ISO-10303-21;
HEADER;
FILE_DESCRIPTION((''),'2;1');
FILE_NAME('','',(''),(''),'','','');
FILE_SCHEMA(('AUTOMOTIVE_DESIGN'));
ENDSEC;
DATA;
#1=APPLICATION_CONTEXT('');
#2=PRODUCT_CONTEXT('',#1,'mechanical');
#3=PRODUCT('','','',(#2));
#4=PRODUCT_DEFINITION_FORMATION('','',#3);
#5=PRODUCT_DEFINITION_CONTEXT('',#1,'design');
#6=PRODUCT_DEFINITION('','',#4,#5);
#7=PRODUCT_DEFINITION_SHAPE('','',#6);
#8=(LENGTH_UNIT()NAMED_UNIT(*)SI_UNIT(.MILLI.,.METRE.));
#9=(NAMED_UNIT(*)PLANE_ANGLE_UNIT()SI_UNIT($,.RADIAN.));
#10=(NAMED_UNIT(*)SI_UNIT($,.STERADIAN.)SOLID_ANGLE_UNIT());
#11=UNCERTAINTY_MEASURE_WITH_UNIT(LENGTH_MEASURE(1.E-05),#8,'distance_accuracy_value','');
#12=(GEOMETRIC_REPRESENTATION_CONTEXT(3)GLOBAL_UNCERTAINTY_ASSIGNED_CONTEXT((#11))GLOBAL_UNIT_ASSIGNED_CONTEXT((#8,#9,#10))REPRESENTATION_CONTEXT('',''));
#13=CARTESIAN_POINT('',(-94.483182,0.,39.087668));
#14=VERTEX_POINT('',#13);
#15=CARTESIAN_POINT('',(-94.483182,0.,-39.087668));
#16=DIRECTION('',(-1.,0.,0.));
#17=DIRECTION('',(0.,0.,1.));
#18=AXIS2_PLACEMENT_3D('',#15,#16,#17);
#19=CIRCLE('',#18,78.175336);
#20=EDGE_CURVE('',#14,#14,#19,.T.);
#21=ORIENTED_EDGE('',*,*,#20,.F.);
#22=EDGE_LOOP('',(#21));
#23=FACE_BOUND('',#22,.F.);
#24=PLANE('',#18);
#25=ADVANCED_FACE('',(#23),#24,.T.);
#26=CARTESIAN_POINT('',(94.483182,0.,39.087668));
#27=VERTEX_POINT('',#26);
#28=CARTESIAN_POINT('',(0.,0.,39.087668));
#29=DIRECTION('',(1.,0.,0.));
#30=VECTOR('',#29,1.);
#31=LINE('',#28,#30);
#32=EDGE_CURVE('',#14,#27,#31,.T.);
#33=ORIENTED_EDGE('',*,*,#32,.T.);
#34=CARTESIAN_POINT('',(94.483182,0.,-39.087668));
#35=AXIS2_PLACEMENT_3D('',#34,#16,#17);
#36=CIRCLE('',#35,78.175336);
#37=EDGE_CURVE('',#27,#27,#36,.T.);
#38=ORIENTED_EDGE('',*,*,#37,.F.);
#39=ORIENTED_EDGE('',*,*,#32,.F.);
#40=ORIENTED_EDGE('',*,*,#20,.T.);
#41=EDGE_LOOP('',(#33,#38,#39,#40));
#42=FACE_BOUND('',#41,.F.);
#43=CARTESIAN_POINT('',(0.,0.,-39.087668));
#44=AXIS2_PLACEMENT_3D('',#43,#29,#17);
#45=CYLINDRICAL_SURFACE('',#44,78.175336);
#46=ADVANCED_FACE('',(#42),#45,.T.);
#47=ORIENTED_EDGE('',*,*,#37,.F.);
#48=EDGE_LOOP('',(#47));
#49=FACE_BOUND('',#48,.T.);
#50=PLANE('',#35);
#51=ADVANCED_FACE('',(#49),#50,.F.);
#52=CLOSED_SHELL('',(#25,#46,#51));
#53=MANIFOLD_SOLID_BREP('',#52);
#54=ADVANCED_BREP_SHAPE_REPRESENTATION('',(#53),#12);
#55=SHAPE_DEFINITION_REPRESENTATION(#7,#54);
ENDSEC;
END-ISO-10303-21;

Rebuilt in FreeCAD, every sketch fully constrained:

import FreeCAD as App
import Part
import Sketcher
from FreeCAD import Vector
Q = App.Units.Quantity


def add_polygon(sketch, points):
    """Adds a closed chain of lines whose ends are joined by coincident constraints."""
    first, n = sketch.GeometryCount, len(points)
    for a, b in zip(points, points[1:] + points[:1]):
        sketch.addGeometry(Part.LineSegment(App.Vector(*a, 0), App.Vector(*b, 0)), False)
    for i in range(n):
        sketch.addConstraint(Sketcher.Constraint("Coincident", first + i, 2, first + (i + 1) % n, 1))

doc = App.newDocument("Part")
body = doc.addObject("PartDesign::Body", "Body")

# Sketch on XZ plane
sketch1 = body.newObject("Sketcher::SketchObject", "Sketch")
sketch1.AttachmentSupport = (doc.getObject("XZ_Plane"), [""])
sketch1.MapMode = "FlatFace"
add_polygon(sketch1, [(-94, 39), (-94, -39), (94, -39), (94, 39)])  # lines 0-3
sketch1.addGeometry(Part.LineSegment(Vector(94, -39, 0), Vector(-94, -39, 0)), True)  # axis
sketch1.addConstraint(Sketcher.Constraint("Vertical", 0))
sketch1.addConstraint(Sketcher.Constraint("Horizontal", 1))
sketch1.addConstraint(Sketcher.Constraint("Vertical", 2))
sketch1.addConstraint(Sketcher.Constraint("Horizontal", 3))
sketch1.addConstraint(Sketcher.Constraint("Horizontal", 4))
sketch1.addConstraint(Sketcher.Constraint("Coincident", 4, 1, 1, 2))
sketch1.addConstraint(Sketcher.Constraint("Symmetric", 0, 2, 2, 2, -1, 1))
sketch1.addConstraint(Sketcher.Constraint("Vertical", 3, 2, 4, 2))
sketch1.addConstraint(Sketcher.Constraint("DistanceX", 1, 1, 1, 2, Q("188.966364 mm")))
sketch1.addConstraint(Sketcher.Constraint("DistanceY", 0, 2, 0, 1, Q("78.175336 mm")))
revolution = body.newObject("PartDesign::Revolution", "Revolution")
revolution.Profile = sketch1
revolution.ReferenceAxis = (sketch1, ["Axis0"])
revolution.Angle = 360

doc.recompute()
